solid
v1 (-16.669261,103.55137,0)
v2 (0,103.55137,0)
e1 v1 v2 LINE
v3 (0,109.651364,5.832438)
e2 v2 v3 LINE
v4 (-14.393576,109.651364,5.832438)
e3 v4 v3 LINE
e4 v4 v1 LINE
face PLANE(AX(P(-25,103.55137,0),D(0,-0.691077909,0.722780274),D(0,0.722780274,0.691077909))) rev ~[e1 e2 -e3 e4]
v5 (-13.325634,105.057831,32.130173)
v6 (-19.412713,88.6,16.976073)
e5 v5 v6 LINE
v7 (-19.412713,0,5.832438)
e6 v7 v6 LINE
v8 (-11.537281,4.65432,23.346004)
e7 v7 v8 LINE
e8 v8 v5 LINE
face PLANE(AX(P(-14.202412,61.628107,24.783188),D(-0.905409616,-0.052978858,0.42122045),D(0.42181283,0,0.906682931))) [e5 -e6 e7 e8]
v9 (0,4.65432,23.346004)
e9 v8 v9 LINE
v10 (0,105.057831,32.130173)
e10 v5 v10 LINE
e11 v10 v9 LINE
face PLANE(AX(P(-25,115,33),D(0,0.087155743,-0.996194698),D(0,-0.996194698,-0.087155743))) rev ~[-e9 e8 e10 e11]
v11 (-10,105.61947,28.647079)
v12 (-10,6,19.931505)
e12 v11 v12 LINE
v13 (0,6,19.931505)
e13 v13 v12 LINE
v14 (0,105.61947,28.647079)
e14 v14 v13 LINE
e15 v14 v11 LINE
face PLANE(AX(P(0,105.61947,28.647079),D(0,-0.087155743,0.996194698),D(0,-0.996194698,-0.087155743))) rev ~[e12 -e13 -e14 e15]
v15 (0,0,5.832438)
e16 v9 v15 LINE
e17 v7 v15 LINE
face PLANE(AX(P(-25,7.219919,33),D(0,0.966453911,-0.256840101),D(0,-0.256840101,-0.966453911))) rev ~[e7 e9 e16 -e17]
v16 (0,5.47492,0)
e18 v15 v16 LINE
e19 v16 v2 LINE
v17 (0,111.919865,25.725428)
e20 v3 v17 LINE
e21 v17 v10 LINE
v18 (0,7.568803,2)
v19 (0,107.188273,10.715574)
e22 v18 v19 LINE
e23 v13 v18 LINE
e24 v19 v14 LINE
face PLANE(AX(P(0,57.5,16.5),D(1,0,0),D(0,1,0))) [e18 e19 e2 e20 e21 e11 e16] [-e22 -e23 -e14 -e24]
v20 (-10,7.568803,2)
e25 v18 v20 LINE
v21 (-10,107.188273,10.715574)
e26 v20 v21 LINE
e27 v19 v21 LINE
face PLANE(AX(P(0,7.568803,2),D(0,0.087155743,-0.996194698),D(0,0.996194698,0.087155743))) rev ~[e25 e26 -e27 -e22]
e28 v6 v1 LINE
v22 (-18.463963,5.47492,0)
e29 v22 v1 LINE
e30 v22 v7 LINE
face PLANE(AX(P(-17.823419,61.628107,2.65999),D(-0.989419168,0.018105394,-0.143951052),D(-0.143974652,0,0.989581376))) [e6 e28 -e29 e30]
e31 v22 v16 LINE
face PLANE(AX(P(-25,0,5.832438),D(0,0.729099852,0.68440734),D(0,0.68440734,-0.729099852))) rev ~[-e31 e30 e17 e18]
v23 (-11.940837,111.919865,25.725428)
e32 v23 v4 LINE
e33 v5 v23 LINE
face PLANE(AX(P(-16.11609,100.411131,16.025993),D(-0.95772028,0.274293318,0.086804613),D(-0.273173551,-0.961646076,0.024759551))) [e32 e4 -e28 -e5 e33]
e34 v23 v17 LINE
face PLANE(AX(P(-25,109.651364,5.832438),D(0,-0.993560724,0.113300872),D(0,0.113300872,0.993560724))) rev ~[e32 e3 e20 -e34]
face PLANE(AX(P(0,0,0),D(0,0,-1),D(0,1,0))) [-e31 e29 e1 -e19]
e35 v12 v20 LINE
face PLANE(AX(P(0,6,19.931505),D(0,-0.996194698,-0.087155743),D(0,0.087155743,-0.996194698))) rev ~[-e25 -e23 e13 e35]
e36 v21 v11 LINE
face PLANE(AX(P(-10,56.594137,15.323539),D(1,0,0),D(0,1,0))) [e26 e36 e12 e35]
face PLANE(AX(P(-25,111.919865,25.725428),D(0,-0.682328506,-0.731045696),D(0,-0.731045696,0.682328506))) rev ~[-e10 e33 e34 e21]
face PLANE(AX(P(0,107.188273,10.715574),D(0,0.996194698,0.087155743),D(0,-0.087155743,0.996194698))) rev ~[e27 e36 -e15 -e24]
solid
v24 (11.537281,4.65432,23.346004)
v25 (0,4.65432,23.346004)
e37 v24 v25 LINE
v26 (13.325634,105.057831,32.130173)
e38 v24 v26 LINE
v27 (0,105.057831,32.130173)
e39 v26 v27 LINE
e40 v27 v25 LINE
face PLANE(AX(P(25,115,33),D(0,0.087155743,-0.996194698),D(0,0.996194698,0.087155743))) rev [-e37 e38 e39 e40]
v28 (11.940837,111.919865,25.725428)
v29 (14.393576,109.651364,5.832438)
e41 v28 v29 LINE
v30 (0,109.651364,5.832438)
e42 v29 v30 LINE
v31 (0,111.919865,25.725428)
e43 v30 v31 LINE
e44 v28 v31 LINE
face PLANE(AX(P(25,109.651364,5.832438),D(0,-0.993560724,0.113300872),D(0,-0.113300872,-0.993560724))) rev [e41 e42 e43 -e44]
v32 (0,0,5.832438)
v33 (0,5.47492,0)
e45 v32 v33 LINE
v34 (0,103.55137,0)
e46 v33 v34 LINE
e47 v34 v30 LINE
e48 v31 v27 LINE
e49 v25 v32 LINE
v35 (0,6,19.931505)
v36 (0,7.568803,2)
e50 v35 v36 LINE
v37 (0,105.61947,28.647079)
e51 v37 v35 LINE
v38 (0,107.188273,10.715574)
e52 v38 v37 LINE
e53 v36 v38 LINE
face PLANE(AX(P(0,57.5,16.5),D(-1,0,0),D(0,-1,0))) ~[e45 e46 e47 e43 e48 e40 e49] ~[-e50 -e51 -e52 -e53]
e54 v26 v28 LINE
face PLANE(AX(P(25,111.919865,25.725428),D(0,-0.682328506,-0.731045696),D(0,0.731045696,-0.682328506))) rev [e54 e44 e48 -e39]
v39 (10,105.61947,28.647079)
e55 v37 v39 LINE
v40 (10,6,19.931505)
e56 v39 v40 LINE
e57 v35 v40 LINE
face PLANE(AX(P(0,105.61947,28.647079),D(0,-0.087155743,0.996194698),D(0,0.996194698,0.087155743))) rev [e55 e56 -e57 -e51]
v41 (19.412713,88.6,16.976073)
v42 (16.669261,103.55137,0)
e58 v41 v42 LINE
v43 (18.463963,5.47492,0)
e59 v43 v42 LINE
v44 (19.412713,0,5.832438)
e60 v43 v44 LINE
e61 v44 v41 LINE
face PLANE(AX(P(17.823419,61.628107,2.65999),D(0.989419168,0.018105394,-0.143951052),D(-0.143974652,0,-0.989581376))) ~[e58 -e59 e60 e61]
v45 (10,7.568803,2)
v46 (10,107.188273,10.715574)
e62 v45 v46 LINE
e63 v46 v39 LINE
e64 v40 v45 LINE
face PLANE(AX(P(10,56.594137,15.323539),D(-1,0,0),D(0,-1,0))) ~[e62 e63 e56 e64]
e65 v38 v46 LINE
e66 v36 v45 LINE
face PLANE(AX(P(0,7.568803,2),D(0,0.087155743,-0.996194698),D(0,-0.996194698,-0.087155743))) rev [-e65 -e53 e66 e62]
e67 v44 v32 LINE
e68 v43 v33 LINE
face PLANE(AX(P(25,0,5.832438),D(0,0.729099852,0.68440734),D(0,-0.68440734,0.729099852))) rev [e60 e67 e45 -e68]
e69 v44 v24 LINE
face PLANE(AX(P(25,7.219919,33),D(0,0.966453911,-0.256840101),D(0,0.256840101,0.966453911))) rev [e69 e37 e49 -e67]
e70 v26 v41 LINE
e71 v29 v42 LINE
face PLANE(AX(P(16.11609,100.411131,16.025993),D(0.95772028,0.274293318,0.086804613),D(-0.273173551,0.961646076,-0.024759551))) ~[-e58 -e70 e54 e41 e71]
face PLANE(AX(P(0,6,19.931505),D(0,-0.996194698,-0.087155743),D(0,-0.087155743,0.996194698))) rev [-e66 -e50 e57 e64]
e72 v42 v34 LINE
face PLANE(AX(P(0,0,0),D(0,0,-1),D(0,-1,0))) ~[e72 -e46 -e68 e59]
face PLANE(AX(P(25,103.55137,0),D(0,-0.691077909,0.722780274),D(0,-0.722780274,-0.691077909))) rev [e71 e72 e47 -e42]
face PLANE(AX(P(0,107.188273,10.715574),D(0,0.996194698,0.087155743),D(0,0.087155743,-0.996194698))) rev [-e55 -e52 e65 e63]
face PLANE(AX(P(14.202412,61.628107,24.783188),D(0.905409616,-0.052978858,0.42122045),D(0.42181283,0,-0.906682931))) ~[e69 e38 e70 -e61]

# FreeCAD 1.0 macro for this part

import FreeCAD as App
import Part
import Sketcher
from FreeCAD import Vector
Q = App.Units.Quantity


def add_polygon(sketch, points):
    """Adds a closed chain of lines whose ends are joined by coincident constraints."""
    first, n = sketch.GeometryCount, len(points)
    for a, b in zip(points, points[1:] + points[:1]):
        sketch.addGeometry(Part.LineSegment(App.Vector(*a, 0), App.Vector(*b, 0)), False)
    for i in range(n):
        sketch.addConstraint(Sketcher.Constraint("Coincident", first + i, 2, first + (i + 1) % n, 1))

doc = App.newDocument("Part")
body = doc.addObject("PartDesign::Body", "Body")

# Sketch on YZ plane
sketch1 = body.newObject("Sketcher::SketchObject", "Sketch")
sketch1.AttachmentSupport = (doc.getObject("YZ_Plane"), [""])
sketch1.MapMode = "FlatFace"
add_polygon(sketch1, [(0, 33), (0, 0), (115, 0), (115, 33)])  # lines 0-3
sketch1.addConstraint([
    Sketcher.Constraint("Vertical", 0),
    Sketcher.Constraint("Horizontal", 1),
    Sketcher.Constraint("Vertical", 2),
    Sketcher.Constraint("Horizontal", 3),
    Sketcher.Constraint("Coincident", 0, 2, -1, 1),
    Sketcher.Constraint("DistanceX", 1, 1, 1, 2, 115.0),
    Sketcher.Constraint("DistanceY", 0, 2, 0, 1, 33.0),
])
pad1 = body.newObject("PartDesign::Pad", "Pad")
pad1.Profile = sketch1
pad1.Length = 25
pad1.Reversed = True

# Sketch on YZ plane
sketch2 = body.newObject("Sketcher::SketchObject", "Sketch001")
sketch2.AttachmentSupport = (doc.getObject("YZ_Plane"), [""])
sketch2.MapMode = "FlatFace"
add_polygon(sketch2, [(106, 29), (6, 20), (8, 2), (107, 11)])  # lines 0-3
sketch2.addConstraint([
    Sketcher.Constraint("Perpendicular", 0, 1),
    Sketcher.Constraint("Perpendicular", 1, 2),
    Sketcher.Constraint("Perpendicular", 2, 3),
    Sketcher.Constraint("Angle", 0, Q("-175 deg")),
    Sketcher.Constraint("Distance", 0, 100.0),
    Sketcher.Constraint("Distance", 1, 18.0),
    Sketcher.Constraint("DistanceX", -1, 1, 0, 2, 6.0),
    Sketcher.Constraint("DistanceY", -1, 1, 1, 2, 2.0),
])
pocket1 = body.newObject("PartDesign::Pocket", "Pocket")
pocket1.Profile = sketch2
pocket1.Length = 10

# Sketch on YZ plane
sketch3 = body.newObject("Sketcher::SketchObject", "Sketch002")
sketch3.AttachmentSupport = (doc.getObject("YZ_Plane"), [""])
sketch3.MapMode = "FlatFace"
sketch3.AttachmentOffset = App.Placement(Vector(0, 0, -25), App.Rotation())
add_polygon(sketch3, [(0, 5.8), (5.5, 0), (7.2, -11.1), (-5.4, -11.1), (-5.4, 35.8), (7.2, 35.8), (7.2, 33)])  # lines 0-6
sketch3.addConstraint([
    Sketcher.Constraint("Horizontal", 2),
    Sketcher.Constraint("Vertical", 3),
    Sketcher.Constraint("Horizontal", 4),
    Sketcher.Constraint("Vertical", 5),
    Sketcher.Constraint("PointOnObject", 0, 2, -1),
    Sketcher.Constraint("PointOnObject", 6, 2, -2),
    Sketcher.Constraint("Vertical", 1, 2, 4, 2),
    Sketcher.Constraint("DistanceY", -1, 1, 5, 2, 33.0),
    Sketcher.Constraint("DistanceX", 0, 2, 1, 2, 1.745),
    Sketcher.Constraint("Distance", 6, 28.110562),
    Sketcher.Constraint("DistanceX", 2, 2, 2, 1, 12.600116),
    Sketcher.Constraint("DistanceY", 3, 1, 3, 2, 46.966506),
    Sketcher.Constraint("DistanceY", 5, 2, 5, 1, 2.816956),
    Sketcher.Constraint("DistanceX", -1, 1, 0, 2, 5.47492),
])
pocket2 = body.newObject("PartDesign::Pocket", "Pocket001")
pocket2.Profile = sketch3
pocket2.Length = 25
pocket2.Reversed = True

# Sketch on YZ plane
sketch4 = body.newObject("Sketcher::SketchObject", "Sketch003")
sketch4.AttachmentSupport = (doc.getObject("YZ_Plane"), [""])
sketch4.MapMode = "FlatFace"
sketch4.AttachmentOffset = App.Placement(Vector(0, 0, -25), App.Rotation())
add_polygon(sketch4, [(115, 33), (4.7, 23.3), (3.7, 36.1), (115, 36.1)])  # lines 0-3
sketch4.addConstraint([
    Sketcher.Constraint("Horizontal", 2),
    Sketcher.Constraint("Vertical", 3),
    Sketcher.Constraint("Angle", 0, Q("-175 deg")),
    Sketcher.Constraint("DistanceX", -1, 1, 2, 2, 115.0),
    Sketcher.Constraint("DistanceY", -1, 1, 3, 2, 33.0),
    Sketcher.Constraint("DistanceY", 0, 2, 1, 2, 12.772898),
    Sketcher.Constraint("Distance", 1, 12.81023),
    Sketcher.Constraint("DistanceX", 2, 1, 2, 2, 111.322947),
])
pocket3 = body.newObject("PartDesign::Pocket", "Pocket002")
pocket3.Profile = sketch4
pocket3.Length = 25
pocket3.Reversed = True

# Sketch on YZ plane
sketch5 = body.newObject("Sketcher::SketchObject", "Sketch004")
sketch5.AttachmentSupport = (doc.getObject("YZ_Plane"), [""])
sketch5.MapMode = "FlatFace"
sketch5.AttachmentOffset = App.Placement(Vector(0, 0, -25), App.Rotation())
add_polygon(sketch5, [(111.9, 25.7), (105.1, 32.1), (121.2, 36.3), (121.2, -0.4), (103.6, -4), (103.6, 0), (109.7, 5.8)])  # lines 0-6
sketch5.addConstraint([
    Sketcher.Constraint("Vertical", 2),
    Sketcher.Constraint("Vertical", 4),
    Sketcher.Constraint("PointOnObject", 4, 2, -1),
    Sketcher.Constraint("Distance", 0, 9.3866),
    Sketcher.Constraint("DistanceY", 4, 1, 4, 2, 4.011051),
    Sketcher.Constraint("DistanceY", -1, 1, 1, 2, 36.296702),
    Sketcher.Constraint("DistanceX", 5, 2, 6, 2, 2.268501),
    Sketcher.Constraint("DistanceY", 2, 2, 2, 1, 36.730822),
    Sketcher.Constraint("DistanceX", -1, 1, 0, 2, 105.057831),
    Sketcher.Constraint("DistanceX", -1, 1, 1, 2, 121.238781),
    Sketcher.Constraint("DistanceX", -1, 1, 3, 2, 103.55137),
    Sketcher.Constraint("DistanceY", -1, 1, 6, 2, 25.725428),
    Sketcher.Constraint("DistanceY", 0, 2, 1, 2, 4.166529),
    Sketcher.Constraint("DistanceY", 3, 2, 5, 2, 9.843489),
])
pocket4 = body.newObject("PartDesign::Pocket", "Pocket003")
pocket4.Profile = sketch5
pocket4.Length = 25
pocket4.Reversed = True

# Sketch on XZ plane
sketch6 = body.newObject("Sketcher::SketchObject", "Sketch005")
sketch6.AttachmentSupport = (doc.getObject("XZ_Plane"), [""])
sketch6.MapMode = "FlatFace"
add_polygon(sketch6, [(-17.215963, -18.880242), (-16.234124, -16.014967), (-19.412713, 5.832438), (-8.992111, 28.231429), (-7.78116, 35.435297), (-12.150693, 37.144776), (-31.830279, 37.144776), (-30.664541, -5.696032), (-33.572479, -19.325319)])  # lines 0-8
sketch6.addConstraint([
    Sketcher.Constraint("Horizontal", 5),
    Sketcher.Constraint("DistanceX", 1, 2, 2, 2, 10.420602),
    Sketcher.Constraint("DistanceX", 7, 2, 5, 2, 1.742199),
    Sketcher.Constraint("Distance", 0, 3.02883),
    Sketcher.Constraint("Distance", 1, 22.077421),
    Sketcher.Constraint("Distance", 4, 4.69203),
    Sketcher.Constraint("Distance", 8, 16.362569),
    Sketcher.Constraint("DistanceX", 5, 2, 5, 1, 19.679586),
    Sketcher.Constraint("DistanceX", 2, 2, -1, 1, 8.992111),
    Sketcher.Constraint("DistanceY", -1, 1, 2, 2, 28.231429),
    Sketcher.Constraint("DistanceX", 3, 2, -1, 1, 7.78116),
    Sketcher.Constraint("DistanceX", 5, 2, -1, 1, 31.830279),
    Sketcher.Constraint("DistanceX", 6, 2, -1, 1, 30.664541),
    Sketcher.Constraint("DistanceY", 7, 2, -1, 1, 19.325319),
    Sketcher.Constraint("DistanceX", 1, 2, 0, 2, 3.178589),
    Sketcher.Constraint("DistanceY", 1, 2, 2, 2, 22.398991),
    Sketcher.Constraint("DistanceY", 1, 2, 3, 2, 29.602859),
    Sketcher.Constraint("DistanceY", 6, 2, 1, 2, 11.52847),
])

# Sketch on an angled plane
sketch7 = body.newObject("Sketcher::SketchObject", "Sketch006")
sketch7.Placement = App.Placement(Vector(0, -0.722149, 5.74161), App.Rotation(Vector(0, -0.992182991, -0.124791477), Vector(1, 0, 0), Vector(0, -0.124791477, 0.992182991), "ZXY"))
sketch7.addGeometry(Part.LineSegment(Vector(-1, -25, 0), Vector(-125, -25, 0)), False)
sketch7.addConstraint([
    Sketcher.Constraint("Horizontal", 0),
    Sketcher.Constraint("DistanceY", 0, 1, -1, 1, 25.0),
    Sketcher.Constraint("DistanceX", 0, 2, 0, 1, 124.2273),
    Sketcher.Constraint("DistanceX", 0, 1, -1, 1, 0.727839),
])
doc.recompute()

subtractivepipe = body.newObject("PartDesign::SubtractivePipe", "SubtractivePipe")
subtractivepipe.Profile = sketch6
subtractivepipe.Spine = (sketch7, ["Edge1"])

# Sketch on an angled plane
sketch8 = body.newObject("Sketcher::SketchObject", "Sketch007")
sketch8.Placement = App.Placement(Vector(-42.492074, 12.169829, 3.851342), App.Rotation(Vector(-0.273173551, -0.961646076, 0.024759551), Vector(0.090266695, 0, 0.995917629), Vector(-0.95772028, 0.274293318, 0.086804613), "ZXY"))
add_polygon(sketch8, [(-108, 33), (-108, -4), (-75, -4), (-75, 33)])  # lines 0-3
sketch8.addConstraint([
    Sketcher.Constraint("Vertical", 0),
    Sketcher.Constraint("Horizontal", 1),
    Sketcher.Constraint("Vertical", 2),
    Sketcher.Constraint("Horizontal", 3),
    Sketcher.Constraint("DistanceX", 1, 1, 1, 2, 32.799341),
    Sketcher.Constraint("DistanceY", 0, 2, 0, 1, 37.962941),
    Sketcher.Constraint("DistanceX", 0, 2, -1, 1, 108.160354),
    Sketcher.Constraint("DistanceY", 0, 2, -1, 1, 4.475648),
])
pocket5 = body.newObject("PartDesign::Pocket", "Pocket004")
pocket5.Profile = sketch8
pocket5.Length = 25
pocket5.Reversed = True
body2 = doc.addObject("PartDesign::Body", "Body001")
doc.recompute()

mirroring = doc.addObject("Part::Mirroring", "Mirroring")
mirroring.Source = body
mirroring.Base = Vector(0, 0, 0)
mirroring.Normal = Vector(1, 0, 0)
body2.BaseFeature = mirroring
doc.recompute()
mirroring.Visibility = False

doc.recompute()
